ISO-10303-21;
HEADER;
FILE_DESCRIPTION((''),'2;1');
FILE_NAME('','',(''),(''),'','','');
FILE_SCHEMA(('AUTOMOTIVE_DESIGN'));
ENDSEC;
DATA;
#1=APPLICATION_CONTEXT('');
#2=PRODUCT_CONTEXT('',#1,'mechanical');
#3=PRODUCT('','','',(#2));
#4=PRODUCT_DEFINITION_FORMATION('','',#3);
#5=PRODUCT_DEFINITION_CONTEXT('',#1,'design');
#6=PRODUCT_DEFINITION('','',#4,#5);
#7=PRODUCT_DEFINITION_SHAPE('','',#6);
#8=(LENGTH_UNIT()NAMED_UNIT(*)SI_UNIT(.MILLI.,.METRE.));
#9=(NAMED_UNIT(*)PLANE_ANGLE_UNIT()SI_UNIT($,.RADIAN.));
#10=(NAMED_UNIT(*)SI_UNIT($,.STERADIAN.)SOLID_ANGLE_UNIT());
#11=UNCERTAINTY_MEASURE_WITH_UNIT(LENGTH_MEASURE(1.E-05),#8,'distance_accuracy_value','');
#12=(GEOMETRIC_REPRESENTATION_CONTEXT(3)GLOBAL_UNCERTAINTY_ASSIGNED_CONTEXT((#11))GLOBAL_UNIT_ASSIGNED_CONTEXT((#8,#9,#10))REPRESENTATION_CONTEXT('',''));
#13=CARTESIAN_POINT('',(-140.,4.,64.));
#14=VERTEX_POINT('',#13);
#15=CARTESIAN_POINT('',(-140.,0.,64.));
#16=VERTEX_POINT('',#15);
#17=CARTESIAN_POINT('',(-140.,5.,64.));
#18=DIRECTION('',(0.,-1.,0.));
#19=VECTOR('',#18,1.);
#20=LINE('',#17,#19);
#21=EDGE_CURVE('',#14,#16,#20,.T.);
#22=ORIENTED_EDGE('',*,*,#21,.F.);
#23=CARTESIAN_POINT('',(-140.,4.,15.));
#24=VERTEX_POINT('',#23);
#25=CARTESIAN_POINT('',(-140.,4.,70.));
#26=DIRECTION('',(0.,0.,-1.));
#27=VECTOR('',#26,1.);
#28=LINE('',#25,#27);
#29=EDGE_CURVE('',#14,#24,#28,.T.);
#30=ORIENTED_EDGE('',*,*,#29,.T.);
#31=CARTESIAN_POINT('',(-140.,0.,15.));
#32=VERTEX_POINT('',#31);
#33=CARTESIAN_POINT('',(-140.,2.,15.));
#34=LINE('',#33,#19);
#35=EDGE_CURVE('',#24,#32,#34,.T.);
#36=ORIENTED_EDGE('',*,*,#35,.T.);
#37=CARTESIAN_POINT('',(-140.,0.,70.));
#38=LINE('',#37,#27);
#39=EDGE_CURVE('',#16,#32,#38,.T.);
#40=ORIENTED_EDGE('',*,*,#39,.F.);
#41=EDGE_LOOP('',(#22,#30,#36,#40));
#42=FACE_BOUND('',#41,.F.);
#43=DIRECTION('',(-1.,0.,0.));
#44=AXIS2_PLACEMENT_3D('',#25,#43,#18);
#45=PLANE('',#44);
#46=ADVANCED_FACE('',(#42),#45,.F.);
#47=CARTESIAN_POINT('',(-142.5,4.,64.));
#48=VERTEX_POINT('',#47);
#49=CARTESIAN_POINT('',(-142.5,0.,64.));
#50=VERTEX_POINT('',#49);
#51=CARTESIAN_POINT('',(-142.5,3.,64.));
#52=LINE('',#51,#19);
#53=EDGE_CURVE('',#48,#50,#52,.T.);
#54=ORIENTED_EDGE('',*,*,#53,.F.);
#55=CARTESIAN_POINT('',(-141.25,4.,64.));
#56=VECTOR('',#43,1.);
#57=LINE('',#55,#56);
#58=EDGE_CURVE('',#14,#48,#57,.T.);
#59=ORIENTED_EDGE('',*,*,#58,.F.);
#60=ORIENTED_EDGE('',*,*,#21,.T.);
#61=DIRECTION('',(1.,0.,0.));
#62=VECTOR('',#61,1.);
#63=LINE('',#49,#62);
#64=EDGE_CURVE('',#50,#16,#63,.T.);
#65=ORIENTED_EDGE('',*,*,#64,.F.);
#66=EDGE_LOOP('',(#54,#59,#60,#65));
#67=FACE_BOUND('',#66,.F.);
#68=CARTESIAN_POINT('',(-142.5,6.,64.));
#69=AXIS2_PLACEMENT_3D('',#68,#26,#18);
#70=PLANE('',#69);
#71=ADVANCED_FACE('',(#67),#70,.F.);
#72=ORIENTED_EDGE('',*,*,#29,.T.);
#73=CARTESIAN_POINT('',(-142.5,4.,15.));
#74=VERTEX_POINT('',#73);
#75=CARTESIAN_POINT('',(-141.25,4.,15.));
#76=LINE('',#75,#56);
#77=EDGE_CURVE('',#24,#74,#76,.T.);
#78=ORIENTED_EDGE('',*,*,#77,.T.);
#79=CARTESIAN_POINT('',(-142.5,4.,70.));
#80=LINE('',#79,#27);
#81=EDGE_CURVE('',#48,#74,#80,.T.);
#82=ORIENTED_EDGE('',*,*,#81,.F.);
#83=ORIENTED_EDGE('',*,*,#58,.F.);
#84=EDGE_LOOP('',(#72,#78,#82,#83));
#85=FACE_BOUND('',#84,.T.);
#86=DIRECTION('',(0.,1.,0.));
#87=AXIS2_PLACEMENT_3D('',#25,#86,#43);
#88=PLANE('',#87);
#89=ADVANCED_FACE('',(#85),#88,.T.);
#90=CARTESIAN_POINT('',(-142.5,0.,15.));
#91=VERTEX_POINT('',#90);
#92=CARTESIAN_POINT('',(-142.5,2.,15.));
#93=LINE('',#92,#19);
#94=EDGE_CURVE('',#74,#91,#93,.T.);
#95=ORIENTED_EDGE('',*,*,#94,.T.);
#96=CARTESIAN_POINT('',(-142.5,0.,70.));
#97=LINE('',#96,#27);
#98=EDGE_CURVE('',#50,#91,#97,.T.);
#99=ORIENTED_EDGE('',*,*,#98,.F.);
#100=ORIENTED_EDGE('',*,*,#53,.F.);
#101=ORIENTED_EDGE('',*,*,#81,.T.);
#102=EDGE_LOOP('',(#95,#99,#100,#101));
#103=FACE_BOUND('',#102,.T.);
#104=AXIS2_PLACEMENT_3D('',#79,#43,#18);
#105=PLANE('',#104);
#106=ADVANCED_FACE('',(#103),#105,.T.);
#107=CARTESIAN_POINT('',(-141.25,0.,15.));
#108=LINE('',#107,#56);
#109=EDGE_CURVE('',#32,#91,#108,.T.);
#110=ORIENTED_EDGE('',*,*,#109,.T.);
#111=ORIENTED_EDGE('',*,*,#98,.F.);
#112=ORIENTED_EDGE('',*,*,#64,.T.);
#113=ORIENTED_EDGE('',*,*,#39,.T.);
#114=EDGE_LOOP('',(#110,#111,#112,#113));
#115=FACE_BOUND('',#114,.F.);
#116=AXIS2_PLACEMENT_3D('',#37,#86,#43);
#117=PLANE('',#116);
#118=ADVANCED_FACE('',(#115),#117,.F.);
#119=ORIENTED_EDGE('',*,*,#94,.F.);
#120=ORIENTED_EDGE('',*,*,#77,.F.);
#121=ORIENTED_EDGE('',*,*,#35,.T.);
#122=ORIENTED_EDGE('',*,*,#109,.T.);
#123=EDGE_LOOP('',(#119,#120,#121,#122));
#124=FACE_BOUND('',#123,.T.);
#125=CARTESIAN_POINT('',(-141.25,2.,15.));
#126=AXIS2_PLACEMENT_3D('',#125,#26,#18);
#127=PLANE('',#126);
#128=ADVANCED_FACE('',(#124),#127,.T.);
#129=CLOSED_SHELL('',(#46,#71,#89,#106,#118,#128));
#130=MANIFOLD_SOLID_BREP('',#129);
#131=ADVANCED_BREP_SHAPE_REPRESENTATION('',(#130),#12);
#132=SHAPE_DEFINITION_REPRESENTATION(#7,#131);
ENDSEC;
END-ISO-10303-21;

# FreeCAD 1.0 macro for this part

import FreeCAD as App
import Part
import Sketcher
Q = App.Units.Quantity


def add_polygon(sketch, points):
    """Adds a closed chain of lines whose ends are joined by coincident constraints."""
    first, n = sketch.GeometryCount, len(points)
    for a, b in zip(points, points[1:] + points[:1]):
        sketch.addGeometry(Part.LineSegment(App.Vector(*a, 0), App.Vector(*b, 0)), False)
    for i in range(n):
        sketch.addConstraint(Sketcher.Constraint("Coincident", first + i, 2, first + (i + 1) % n, 1))

doc = App.newDocument("Part")
body = doc.addObject("PartDesign::Body", "Body")

sketch1 = body.newObject("Sketcher::SketchObject", "Sketch")
sketch1.AttachmentSupport = (doc.getObject("YZ_Plane"), [""])
sketch1.MapMode = "FlatFace"
sketch1.AttachmentOffset = App.Placement(App.Vector(0, 0, -250), App.Rotation())
add_polygon(sketch1, [(6, 70), (6, 64), (0, 64), (0, 70)])
sketch1.addConstraint(Sketcher.Constraint("Vertical", 0))
sketch1.addConstraint(Sketcher.Constraint("Horizontal", 1))
sketch1.addConstraint(Sketcher.Constraint("Vertical", 2))
sketch1.addConstraint(Sketcher.Constraint("Horizontal", 3))
sketch1.addConstraint(Sketcher.Constraint("PointOnObject", 1, 2, -2))
sketch1.addConstraint(Sketcher.Constraint("Equal", 3, 0))
sketch1.addConstraint(Sketcher.Constraint("DistanceX", 1, 2, 1, 1, Q("6 mm")))
sketch1.addConstraint(Sketcher.Constraint("DistanceY", -1, 1, 0, 2, Q("64 mm")))
pad1 = body.newObject("PartDesign::Pad", "Pad")
pad1.Profile = sketch1
pad1.Length = 7.5
body2 = doc.addObject("PartDesign::Body", "Body001")
doc.recompute()

body.Placement = App.Placement(App.Vector(107.5, 0, 0), App.Rotation(App.Vector(0, 0, 1), 0))
boolean = body2.newObject("PartDesign::Boolean", "Boolean")
boolean.Type = "Fuse"
boolean.addObjects([body])
body3 = doc.addObject("PartDesign::Body", "Body002")

sketch2 = body3.newObject("Sketcher::SketchObject", "Sketch001")
sketch2.AttachmentSupport = (doc.getObject("XY_Plane002"), [""])
sketch2.MapMode = "FlatFace"
sketch2.AttachmentOffset = App.Placement(App.Vector(0, 0, 70), App.Rotation())
add_polygon(sketch2, [(-142.5, 4), (-140, 4), (-140, 0), (-142.5, 0)])
sketch2.addConstraint(Sketcher.Constraint("Horizontal", 0))
sketch2.addConstraint(Sketcher.Constraint("Vertical", 1))
sketch2.addConstraint(Sketcher.Constraint("Horizontal", 2))
sketch2.addConstraint(Sketcher.Constraint("Vertical", 3))
sketch2.addConstraint(Sketcher.Constraint("PointOnObject", 1, 2, -1))
sketch2.addConstraint(Sketcher.Constraint("DistanceY", 1, 2, 1, 1, Q("4 mm")))
sketch2.addConstraint(Sketcher.Constraint("DistanceX", 0, 1, 0, 2, Q("2.5 mm")))
sketch2.addConstraint(Sketcher.Constraint("DistanceX", 0, 2, -1, 1, Q("140 mm")))
pad2 = body3.newObject("PartDesign::Pad", "Pad001")
pad2.Profile = sketch2
pad2.Length = 55
pad2.Reversed = True
doc.recompute()

boolean2 = body3.newObject("PartDesign::Boolean", "Boolean001")
boolean2.Type = "Cut"
boolean2.addObjects([body2])

doc.recompute()
